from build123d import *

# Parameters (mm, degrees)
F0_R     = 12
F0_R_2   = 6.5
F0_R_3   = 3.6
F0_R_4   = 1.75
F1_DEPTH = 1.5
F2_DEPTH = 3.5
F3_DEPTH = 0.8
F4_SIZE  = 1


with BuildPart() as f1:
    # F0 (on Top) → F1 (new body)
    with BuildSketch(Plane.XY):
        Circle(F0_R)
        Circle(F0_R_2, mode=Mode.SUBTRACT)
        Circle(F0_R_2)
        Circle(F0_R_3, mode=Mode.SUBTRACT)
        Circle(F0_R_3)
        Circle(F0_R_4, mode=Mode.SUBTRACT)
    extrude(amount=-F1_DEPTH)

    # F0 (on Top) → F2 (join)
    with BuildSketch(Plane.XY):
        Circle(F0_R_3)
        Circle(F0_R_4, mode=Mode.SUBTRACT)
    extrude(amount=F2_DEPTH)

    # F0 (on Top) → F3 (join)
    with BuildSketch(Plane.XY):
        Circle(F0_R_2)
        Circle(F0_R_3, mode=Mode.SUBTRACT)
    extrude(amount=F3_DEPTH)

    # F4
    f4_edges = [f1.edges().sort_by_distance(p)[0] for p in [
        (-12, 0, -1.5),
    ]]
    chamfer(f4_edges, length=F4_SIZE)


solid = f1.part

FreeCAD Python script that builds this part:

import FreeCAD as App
import Part
import Sketcher
Q = App.Units.Quantity


def edges_at(feature, points):
    """Names of the edges that pass closest to the given points."""
    edges = feature.Shape.Edges
    near = lambda p: min(range(len(edges)), key=lambda i: edges[i].distToShape(Part.Vertex(*p))[0])
    return sorted({f"Edge{near(p) + 1}" for p in points})

doc = App.newDocument("Part")
body = doc.addObject("PartDesign::Body", "Body")

# Sketch on XY plane
sketch1 = doc.addObject("Sketcher::SketchObject", "Sketch")
body.addObject(sketch1)
sketch1.AttachmentSupport = (doc.XY_Plane, [""])
sketch1.MapMode = "FlatFace"
sketch1.addGeometry(Part.Circle(App.Vector(0, 0, 0), App.Vector(0, 0, 1), 12), False)
sketch1.addGeometry(Part.Circle(App.Vector(0, 0, 0), App.Vector(0, 0, 1), 1.75), False)
sketch1.addConstraint(Sketcher.Constraint("Coincident", 0, 3, -1, 1))
sketch1.addConstraint(Sketcher.Constraint("Coincident", 1, 3, -1, 1))
sketch1.addConstraint(Sketcher.Constraint("Diameter", 0, Q("24 mm")))
sketch1.addConstraint(Sketcher.Constraint("Diameter", 1, Q("3.5 mm")))
pad1 = doc.addObject("PartDesign::Pad", "Pad")
body.addObject(pad1)
pad1.Profile = sketch1
pad1.Length = 1.5
pad1.Reversed = True

# Sketch on XY plane
sketch2 = doc.addObject("Sketcher::SketchObject", "Sketch001")
body.addObject(sketch2)
sketch2.AttachmentSupport = (doc.XY_Plane, [""])
sketch2.MapMode = "FlatFace"
sketch2.addGeometry(Part.Circle(App.Vector(0, 0, 0), App.Vector(0, 0, 1), 3.6), False)
sketch2.addGeometry(Part.Circle(App.Vector(0, 0, 0), App.Vector(0, 0, 1), 1.75), False)
sketch2.addConstraint(Sketcher.Constraint("Coincident", 0, 3, -1, 1))
sketch2.addConstraint(Sketcher.Constraint("Coincident", 1, 3, -1, 1))
sketch2.addConstraint(Sketcher.Constraint("Diameter", 0, Q("7.2 mm")))
sketch2.addConstraint(Sketcher.Constraint("Diameter", 1, Q("3.5 mm")))
pad2 = doc.addObject("PartDesign::Pad", "Pad001")
body.addObject(pad2)
pad2.Profile = sketch2
pad2.Length = 3.5

# Sketch on XY plane
sketch3 = doc.addObject("Sketcher::SketchObject", "Sketch002")
body.addObject(sketch3)
sketch3.AttachmentSupport = (doc.XY_Plane, [""])
sketch3.MapMode = "FlatFace"
sketch3.addGeometry(Part.Circle(App.Vector(0, 0, 0), App.Vector(0, 0, 1), 6.5), False)
sketch3.addGeometry(Part.Circle(App.Vector(0, 0, 0), App.Vector(0, 0, 1), 3.6), False)
sketch3.addConstraint(Sketcher.Constraint("Coincident", 0, 3, -1, 1))
sketch3.addConstraint(Sketcher.Constraint("Coincident", 1, 3, -1, 1))
sketch3.addConstraint(Sketcher.Constraint("Diameter", 0, Q("13 mm")))
sketch3.addConstraint(Sketcher.Constraint("Diameter", 1, Q("7.2 mm")))
pad3 = doc.addObject("PartDesign::Pad", "Pad002")
body.addObject(pad3)
pad3.Profile = sketch3
pad3.Length = 0.8
doc.recompute()

chamfer = doc.addObject("PartDesign::Chamfer", "Chamfer")
body.addObject(chamfer)
chamfer.Base = (pad3, edges_at(pad3, [(-12, 0, -1.5)]))
chamfer.Size = 1

doc.recompute()
